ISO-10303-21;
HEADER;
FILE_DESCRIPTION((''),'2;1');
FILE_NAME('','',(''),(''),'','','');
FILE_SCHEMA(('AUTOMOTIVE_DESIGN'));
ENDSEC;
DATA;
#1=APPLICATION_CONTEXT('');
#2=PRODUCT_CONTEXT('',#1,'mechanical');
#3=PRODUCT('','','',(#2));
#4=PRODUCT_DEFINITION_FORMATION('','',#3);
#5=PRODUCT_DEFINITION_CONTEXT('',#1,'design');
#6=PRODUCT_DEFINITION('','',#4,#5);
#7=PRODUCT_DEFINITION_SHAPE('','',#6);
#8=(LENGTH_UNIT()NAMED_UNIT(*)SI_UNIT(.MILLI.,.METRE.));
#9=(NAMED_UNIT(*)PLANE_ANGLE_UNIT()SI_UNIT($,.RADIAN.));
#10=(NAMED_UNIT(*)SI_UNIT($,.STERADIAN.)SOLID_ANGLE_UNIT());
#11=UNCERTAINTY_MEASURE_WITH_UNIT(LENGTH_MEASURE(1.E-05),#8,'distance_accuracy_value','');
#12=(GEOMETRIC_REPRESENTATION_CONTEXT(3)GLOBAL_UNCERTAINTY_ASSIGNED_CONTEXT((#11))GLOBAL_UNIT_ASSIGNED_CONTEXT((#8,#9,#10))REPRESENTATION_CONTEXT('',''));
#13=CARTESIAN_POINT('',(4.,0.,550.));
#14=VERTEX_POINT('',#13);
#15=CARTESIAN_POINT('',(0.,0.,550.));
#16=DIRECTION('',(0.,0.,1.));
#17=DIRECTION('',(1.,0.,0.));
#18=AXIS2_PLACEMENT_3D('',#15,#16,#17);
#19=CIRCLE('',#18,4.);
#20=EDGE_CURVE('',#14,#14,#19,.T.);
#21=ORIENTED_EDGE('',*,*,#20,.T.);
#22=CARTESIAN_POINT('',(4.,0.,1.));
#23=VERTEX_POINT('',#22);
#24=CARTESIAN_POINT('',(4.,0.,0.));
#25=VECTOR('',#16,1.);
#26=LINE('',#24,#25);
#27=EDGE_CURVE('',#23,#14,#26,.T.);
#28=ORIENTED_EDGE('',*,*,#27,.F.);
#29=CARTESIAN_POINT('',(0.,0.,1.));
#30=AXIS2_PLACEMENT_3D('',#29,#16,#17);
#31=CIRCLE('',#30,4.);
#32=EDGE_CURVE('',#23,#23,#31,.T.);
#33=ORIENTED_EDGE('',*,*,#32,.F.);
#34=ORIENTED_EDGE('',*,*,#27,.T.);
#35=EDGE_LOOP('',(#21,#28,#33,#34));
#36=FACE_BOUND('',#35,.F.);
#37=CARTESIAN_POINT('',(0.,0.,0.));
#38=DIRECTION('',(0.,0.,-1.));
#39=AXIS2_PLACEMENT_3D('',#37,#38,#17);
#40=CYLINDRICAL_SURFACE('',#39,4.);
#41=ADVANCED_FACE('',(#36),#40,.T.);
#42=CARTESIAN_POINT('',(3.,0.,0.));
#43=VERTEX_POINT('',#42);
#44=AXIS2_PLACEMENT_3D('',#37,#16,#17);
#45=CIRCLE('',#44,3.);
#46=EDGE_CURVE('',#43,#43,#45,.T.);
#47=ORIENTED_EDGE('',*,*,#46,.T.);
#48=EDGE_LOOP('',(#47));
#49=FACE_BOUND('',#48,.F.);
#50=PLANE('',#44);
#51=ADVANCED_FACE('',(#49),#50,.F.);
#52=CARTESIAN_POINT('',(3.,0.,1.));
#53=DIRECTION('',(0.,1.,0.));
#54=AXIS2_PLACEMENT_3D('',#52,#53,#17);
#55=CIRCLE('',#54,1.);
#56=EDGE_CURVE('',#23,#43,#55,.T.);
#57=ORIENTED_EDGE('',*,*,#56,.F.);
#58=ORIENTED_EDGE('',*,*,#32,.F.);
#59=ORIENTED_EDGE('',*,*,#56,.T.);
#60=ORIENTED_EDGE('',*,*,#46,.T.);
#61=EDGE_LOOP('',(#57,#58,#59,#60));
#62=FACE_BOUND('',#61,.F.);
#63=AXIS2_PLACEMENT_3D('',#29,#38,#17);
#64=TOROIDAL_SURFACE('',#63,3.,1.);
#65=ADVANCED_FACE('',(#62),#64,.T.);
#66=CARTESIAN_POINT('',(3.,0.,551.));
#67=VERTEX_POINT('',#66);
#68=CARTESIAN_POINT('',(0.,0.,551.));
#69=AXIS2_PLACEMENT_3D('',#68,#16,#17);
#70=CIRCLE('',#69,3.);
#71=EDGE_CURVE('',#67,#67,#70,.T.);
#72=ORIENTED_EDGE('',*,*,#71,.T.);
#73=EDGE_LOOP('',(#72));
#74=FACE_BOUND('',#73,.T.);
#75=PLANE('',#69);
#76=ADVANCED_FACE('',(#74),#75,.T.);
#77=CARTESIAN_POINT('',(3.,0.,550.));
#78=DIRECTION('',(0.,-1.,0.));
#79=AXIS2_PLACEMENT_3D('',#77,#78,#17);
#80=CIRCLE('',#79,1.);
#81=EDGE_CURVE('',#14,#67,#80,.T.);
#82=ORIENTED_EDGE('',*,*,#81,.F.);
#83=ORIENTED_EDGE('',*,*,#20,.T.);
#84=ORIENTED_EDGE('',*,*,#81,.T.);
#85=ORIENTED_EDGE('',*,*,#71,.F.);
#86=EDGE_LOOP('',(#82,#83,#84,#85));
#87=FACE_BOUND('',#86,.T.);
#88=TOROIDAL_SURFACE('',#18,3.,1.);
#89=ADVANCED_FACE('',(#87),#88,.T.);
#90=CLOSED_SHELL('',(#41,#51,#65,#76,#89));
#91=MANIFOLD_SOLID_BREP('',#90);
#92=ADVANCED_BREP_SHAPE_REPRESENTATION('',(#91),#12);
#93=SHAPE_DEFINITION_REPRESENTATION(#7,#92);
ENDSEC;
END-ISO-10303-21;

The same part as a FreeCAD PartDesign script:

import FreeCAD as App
import Part
import Sketcher


def edges_at(feature, points):
    """Names of the edges that pass closest to the given points."""
    edges = feature.Shape.Edges
    near = lambda p: min(range(len(edges)), key=lambda i: edges[i].distToShape(Part.Vertex(*p))[0])
    return sorted({f"Edge{near(p) + 1}" for p in points})

doc = App.newDocument("Part")
body = doc.addObject("PartDesign::Body", "Body")

# Sketch on XY plane
sketch1 = body.newObject("Sketcher::SketchObject", "Sketch")
sketch1.AttachmentSupport = (doc.getObject("XY_Plane"), [""])
sketch1.MapMode = "FlatFace"
sketch1.addGeometry(Part.Circle(App.Vector(0, 0, 0), App.Vector(0, 0, 1), 4), False)
sketch1.addConstraint(Sketcher.Constraint("Coincident", 0, 3, -1, 1))
sketch1.addConstraint(Sketcher.Constraint("Diameter", 0, 8.0))
pad1 = body.newObject("PartDesign::Pad", "Pad")
pad1.Profile = sketch1
pad1.Length = 551
doc.recompute()

fillet = body.newObject("PartDesign::Fillet", "Fillet")
fillet.Base = (pad1, edges_at(pad1, [(-4, 0, 551), (-4, 0, 0)]))
fillet.Radius = 1

doc.recompute()
